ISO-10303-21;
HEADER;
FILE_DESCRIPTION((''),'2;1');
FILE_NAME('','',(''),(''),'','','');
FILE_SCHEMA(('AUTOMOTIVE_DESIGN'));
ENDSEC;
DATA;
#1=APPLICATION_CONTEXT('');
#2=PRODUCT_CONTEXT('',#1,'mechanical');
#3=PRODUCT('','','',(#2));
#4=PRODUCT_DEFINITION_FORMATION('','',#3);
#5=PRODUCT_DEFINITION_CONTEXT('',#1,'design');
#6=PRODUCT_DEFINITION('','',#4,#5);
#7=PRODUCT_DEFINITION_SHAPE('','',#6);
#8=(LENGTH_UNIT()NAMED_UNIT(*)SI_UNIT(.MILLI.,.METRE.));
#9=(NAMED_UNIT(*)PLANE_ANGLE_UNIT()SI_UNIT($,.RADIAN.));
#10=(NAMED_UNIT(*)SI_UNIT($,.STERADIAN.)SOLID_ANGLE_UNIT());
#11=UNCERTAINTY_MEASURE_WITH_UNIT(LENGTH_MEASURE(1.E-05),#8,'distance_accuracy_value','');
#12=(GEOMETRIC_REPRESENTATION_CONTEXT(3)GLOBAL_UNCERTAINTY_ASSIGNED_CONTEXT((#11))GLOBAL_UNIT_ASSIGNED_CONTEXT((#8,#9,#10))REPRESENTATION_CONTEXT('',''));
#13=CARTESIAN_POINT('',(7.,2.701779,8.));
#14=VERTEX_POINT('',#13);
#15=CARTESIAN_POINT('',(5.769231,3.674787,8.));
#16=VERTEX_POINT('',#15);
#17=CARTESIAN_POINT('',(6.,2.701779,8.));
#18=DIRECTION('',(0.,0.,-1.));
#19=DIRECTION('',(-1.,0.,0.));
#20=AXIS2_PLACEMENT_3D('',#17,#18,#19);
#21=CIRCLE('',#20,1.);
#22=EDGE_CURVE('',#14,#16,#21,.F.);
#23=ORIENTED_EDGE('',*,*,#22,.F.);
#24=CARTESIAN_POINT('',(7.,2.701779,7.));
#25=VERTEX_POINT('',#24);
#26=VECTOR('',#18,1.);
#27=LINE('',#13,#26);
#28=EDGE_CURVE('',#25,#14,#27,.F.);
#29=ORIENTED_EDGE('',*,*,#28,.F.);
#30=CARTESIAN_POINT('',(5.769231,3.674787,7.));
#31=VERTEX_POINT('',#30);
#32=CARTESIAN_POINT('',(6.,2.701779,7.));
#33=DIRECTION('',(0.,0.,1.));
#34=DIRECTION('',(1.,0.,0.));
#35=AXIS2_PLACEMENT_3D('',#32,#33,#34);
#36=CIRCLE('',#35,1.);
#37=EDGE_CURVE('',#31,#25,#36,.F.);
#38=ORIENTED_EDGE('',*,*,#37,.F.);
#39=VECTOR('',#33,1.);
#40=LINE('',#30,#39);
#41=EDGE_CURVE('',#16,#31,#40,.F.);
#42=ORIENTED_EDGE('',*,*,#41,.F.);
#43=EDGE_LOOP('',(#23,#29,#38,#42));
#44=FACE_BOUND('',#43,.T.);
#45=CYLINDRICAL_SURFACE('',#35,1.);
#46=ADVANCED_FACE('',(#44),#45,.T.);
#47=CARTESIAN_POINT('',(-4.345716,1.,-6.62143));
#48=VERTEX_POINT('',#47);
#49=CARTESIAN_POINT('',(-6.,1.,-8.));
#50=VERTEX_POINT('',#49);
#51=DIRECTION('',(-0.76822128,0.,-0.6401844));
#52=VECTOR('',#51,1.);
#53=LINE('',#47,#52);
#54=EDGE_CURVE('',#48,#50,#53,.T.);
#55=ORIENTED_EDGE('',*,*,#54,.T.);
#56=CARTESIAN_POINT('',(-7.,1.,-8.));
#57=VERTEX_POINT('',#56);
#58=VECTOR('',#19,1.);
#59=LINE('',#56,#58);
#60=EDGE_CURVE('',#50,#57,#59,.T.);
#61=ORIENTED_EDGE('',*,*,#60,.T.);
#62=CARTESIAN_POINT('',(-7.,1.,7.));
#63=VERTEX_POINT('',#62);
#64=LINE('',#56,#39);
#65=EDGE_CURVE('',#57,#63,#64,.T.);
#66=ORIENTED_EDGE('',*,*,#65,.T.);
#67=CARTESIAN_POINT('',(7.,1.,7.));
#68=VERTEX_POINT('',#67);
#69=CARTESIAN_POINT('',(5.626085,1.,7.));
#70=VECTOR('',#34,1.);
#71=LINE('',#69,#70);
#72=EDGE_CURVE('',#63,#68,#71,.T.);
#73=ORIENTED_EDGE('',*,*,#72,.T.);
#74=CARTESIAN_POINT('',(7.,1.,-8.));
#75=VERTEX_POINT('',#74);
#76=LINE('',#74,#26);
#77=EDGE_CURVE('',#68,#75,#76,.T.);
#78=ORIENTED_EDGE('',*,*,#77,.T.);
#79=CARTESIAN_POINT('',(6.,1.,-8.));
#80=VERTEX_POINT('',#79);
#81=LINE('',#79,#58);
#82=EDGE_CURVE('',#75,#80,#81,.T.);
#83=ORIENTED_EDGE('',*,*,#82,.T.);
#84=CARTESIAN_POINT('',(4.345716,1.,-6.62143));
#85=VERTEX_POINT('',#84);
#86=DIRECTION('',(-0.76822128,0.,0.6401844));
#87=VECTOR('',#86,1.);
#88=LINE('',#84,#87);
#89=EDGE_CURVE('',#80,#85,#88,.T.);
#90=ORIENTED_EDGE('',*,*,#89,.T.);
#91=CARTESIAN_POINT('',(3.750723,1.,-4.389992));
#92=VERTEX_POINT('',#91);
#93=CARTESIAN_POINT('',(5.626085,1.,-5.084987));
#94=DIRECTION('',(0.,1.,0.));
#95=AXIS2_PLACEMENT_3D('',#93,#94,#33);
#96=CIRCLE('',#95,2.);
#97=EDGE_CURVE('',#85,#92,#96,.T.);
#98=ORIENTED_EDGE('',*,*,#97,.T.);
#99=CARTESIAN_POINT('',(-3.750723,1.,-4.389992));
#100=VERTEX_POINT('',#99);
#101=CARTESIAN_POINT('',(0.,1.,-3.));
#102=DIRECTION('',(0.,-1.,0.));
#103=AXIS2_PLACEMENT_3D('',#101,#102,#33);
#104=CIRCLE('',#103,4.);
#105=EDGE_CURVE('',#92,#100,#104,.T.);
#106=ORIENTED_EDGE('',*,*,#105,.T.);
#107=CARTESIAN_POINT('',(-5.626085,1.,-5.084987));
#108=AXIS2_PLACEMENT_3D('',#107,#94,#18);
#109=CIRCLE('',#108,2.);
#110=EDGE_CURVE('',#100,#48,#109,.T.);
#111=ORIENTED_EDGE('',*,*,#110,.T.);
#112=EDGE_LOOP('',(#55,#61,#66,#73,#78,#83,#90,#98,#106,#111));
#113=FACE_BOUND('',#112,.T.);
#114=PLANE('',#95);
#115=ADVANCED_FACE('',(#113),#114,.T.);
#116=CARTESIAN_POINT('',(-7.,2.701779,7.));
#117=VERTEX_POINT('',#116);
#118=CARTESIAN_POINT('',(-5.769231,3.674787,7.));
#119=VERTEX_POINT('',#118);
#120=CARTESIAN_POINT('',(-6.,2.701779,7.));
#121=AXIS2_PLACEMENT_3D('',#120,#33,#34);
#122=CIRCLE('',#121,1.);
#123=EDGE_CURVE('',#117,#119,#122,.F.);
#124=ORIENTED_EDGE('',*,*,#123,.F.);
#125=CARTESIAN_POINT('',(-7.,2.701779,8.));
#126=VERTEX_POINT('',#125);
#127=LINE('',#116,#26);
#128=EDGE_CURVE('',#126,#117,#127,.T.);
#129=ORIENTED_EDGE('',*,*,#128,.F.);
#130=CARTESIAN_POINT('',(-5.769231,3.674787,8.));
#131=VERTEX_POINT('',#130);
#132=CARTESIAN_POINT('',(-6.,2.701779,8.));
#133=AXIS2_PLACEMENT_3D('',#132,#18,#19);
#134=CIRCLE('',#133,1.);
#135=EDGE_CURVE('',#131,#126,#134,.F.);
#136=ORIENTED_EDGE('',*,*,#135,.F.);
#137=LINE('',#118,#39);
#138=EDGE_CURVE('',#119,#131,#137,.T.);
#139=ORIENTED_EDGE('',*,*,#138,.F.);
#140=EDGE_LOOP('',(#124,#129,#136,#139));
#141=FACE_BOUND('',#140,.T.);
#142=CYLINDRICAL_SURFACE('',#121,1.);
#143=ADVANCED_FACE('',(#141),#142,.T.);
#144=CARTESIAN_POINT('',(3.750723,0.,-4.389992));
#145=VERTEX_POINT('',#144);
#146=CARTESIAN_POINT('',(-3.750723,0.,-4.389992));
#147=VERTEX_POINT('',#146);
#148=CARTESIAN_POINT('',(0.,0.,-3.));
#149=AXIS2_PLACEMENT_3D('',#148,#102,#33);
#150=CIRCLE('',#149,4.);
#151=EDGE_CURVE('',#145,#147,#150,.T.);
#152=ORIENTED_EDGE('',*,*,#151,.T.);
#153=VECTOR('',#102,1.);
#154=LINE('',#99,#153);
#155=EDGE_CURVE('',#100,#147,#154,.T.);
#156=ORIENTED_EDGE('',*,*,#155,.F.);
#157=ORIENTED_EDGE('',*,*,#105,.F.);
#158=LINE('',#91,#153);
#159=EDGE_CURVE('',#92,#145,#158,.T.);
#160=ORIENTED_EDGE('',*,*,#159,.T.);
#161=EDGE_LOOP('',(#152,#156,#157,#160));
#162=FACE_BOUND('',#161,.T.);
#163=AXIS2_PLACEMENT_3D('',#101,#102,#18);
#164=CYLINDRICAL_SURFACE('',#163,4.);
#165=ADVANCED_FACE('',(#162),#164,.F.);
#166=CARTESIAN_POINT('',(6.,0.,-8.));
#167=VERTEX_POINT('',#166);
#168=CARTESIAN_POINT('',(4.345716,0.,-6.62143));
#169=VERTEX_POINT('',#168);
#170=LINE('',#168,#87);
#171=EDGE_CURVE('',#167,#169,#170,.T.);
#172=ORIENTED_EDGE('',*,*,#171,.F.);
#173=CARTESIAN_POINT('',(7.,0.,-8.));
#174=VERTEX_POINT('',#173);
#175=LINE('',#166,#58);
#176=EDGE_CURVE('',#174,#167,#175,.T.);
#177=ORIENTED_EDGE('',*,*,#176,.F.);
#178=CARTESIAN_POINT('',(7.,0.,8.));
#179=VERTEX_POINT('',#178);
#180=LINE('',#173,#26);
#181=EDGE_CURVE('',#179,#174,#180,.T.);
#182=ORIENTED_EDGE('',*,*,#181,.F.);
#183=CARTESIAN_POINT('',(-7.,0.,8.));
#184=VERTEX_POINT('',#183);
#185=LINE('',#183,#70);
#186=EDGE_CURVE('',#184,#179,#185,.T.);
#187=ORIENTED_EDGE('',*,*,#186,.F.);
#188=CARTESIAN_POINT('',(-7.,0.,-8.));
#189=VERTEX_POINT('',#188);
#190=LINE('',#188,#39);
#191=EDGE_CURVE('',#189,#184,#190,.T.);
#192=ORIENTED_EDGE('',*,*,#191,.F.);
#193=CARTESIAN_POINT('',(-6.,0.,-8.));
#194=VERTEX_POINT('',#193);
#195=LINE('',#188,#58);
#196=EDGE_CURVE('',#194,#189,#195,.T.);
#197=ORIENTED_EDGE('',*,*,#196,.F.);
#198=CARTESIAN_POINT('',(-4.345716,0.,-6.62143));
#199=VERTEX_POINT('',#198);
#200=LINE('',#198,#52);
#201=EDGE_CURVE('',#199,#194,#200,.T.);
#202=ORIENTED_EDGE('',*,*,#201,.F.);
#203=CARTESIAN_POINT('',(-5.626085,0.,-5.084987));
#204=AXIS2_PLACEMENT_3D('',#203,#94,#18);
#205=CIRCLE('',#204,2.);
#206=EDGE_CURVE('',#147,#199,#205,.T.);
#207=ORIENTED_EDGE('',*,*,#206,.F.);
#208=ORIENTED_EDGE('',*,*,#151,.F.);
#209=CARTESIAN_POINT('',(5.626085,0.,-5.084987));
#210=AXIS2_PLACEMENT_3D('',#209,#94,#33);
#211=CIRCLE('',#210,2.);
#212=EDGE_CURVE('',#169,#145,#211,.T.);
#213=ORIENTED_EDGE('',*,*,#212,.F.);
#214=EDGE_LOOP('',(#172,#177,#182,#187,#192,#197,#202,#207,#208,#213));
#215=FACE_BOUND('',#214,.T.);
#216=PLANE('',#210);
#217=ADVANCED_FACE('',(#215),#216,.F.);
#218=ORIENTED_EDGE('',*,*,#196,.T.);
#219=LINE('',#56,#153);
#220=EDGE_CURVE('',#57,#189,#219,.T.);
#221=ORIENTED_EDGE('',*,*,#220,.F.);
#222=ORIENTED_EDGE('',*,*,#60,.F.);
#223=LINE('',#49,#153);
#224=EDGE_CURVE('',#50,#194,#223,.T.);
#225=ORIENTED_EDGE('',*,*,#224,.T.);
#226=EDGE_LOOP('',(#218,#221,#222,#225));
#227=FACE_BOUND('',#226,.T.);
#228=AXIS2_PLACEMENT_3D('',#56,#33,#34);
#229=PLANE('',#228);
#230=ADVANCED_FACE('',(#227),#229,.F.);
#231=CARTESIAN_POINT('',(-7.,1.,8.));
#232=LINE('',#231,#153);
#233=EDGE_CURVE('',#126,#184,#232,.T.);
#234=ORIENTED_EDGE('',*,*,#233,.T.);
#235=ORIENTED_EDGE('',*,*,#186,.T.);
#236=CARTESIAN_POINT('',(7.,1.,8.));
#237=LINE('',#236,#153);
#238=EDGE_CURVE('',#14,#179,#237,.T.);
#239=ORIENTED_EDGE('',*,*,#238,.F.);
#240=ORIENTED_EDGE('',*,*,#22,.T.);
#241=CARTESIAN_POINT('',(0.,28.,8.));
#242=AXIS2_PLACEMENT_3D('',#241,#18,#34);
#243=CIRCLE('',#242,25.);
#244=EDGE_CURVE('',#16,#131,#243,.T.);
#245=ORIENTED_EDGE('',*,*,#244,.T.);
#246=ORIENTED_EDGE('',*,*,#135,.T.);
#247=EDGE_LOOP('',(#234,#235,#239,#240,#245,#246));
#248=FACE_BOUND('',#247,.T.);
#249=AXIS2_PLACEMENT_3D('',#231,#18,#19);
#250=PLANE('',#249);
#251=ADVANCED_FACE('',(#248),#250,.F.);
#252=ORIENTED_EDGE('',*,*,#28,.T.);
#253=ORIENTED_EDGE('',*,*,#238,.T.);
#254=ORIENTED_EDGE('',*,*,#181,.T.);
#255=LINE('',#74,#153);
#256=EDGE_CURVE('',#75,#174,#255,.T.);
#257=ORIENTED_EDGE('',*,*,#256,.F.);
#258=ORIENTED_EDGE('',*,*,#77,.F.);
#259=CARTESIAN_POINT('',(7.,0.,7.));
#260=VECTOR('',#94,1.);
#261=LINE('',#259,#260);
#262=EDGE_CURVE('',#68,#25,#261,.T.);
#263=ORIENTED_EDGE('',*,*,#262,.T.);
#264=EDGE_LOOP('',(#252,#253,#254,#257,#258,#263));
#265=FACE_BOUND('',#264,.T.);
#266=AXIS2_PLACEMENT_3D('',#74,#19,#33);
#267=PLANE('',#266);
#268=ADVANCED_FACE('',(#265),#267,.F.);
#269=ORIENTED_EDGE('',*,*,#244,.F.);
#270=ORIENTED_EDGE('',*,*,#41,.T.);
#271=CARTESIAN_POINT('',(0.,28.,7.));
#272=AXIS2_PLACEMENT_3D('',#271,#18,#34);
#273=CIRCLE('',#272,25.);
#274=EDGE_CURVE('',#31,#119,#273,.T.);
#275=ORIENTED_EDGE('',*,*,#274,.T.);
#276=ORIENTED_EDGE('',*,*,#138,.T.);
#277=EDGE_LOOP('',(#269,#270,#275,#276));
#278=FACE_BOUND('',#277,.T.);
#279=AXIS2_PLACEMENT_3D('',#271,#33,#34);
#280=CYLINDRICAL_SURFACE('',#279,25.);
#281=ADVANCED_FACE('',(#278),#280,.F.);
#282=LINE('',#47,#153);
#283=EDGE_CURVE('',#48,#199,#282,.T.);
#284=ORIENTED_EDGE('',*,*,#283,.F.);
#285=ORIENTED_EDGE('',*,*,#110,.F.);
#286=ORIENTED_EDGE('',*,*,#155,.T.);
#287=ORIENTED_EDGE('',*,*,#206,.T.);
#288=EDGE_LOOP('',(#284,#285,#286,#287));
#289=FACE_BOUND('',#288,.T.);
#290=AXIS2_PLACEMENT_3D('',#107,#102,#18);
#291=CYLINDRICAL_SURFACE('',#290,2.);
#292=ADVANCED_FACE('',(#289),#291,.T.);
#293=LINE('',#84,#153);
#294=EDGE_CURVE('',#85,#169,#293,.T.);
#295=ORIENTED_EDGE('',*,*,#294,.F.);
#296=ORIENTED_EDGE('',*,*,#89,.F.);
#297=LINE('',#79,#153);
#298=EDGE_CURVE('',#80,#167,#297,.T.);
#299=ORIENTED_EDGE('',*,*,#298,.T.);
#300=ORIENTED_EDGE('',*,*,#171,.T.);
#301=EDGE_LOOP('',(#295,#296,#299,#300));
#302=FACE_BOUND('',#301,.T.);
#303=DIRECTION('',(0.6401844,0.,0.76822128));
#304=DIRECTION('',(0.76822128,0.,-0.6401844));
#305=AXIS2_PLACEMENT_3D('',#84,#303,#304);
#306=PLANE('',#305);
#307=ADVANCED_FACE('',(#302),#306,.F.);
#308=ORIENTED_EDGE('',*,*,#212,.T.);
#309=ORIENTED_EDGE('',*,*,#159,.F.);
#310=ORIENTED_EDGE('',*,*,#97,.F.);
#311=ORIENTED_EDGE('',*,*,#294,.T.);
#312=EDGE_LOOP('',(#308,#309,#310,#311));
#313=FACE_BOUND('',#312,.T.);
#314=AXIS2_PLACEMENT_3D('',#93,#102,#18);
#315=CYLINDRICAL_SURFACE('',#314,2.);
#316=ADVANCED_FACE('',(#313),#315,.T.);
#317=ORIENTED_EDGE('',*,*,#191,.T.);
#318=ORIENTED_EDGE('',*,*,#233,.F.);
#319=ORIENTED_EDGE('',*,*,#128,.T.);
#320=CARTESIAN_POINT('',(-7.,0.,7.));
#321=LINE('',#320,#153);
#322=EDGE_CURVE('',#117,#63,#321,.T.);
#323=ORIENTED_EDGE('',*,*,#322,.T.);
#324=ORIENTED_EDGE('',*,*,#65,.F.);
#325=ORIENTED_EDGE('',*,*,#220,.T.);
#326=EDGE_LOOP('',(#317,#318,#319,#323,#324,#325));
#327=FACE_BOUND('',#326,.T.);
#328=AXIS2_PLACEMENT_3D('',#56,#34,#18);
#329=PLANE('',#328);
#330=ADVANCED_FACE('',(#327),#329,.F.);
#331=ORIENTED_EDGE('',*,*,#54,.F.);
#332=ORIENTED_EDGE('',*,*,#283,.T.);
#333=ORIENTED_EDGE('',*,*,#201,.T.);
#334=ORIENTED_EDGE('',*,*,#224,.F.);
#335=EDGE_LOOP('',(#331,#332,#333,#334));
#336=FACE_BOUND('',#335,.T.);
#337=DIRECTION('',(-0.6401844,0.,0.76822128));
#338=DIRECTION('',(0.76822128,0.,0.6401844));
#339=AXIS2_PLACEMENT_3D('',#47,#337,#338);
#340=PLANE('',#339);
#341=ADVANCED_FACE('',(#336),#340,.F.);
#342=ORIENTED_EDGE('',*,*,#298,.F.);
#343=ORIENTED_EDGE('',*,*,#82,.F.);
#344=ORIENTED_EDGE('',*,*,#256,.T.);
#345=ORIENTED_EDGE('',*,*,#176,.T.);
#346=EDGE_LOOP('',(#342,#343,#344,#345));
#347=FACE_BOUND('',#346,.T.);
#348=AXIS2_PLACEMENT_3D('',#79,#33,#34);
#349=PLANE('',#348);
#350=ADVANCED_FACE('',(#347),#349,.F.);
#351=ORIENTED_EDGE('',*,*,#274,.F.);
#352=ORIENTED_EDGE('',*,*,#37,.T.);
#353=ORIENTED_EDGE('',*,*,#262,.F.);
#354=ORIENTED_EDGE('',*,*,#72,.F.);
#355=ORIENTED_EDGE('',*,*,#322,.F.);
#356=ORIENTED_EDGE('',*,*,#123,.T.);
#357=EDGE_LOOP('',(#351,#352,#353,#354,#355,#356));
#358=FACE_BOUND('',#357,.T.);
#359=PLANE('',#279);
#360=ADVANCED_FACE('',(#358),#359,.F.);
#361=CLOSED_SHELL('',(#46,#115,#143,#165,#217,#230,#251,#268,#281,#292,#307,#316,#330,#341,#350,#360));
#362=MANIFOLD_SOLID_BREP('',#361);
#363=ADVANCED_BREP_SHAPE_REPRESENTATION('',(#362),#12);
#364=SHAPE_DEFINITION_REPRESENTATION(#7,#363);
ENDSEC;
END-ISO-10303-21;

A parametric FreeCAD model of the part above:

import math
import FreeCAD as App
import Part
import Sketcher
from FreeCAD import Vector


def edges_at(feature, points):
    """Names of the edges that pass closest to the given points."""
    edges = feature.Shape.Edges
    near = lambda p: min(range(len(edges)), key=lambda i: edges[i].distToShape(Part.Vertex(*p))[0])
    return sorted({f"Edge{near(p) + 1}" for p in points})

doc = App.newDocument("Part")
body = doc.addObject("PartDesign::Body", "Body")

# Sketch on XZ plane
sketch1 = doc.addObject("Sketcher::SketchObject", "Sketch")
body.addObject(sketch1)
sketch1.AttachmentSupport = (doc.XZ_Plane, [""])
sketch1.MapMode = "FlatFace"
sketch1.addGeometry(Part.LineSegment(Vector(-6, -8, 0), Vector(-7, -8, 0)), False)
sketch1.addGeometry(Part.LineSegment(Vector(-7, -8, 0), Vector(-7, 8, 0)), False)
sketch1.addGeometry(Part.LineSegment(Vector(-7, 8, 0), Vector(7, 8, 0)), False)
sketch1.addGeometry(Part.LineSegment(Vector(7, 8, 0), Vector(7, -8, 0)), False)
sketch1.addGeometry(Part.LineSegment(Vector(7, -8, 0), Vector(6, -8, 0)), False)
sketch1.addGeometry(Part.LineSegment(Vector(6, -8, 0), Vector(4.345716, -6.62143, 0)), False)
sketch1.addGeometry(Part.ArcOfCircle(Part.Circle(Vector(5.626085, -5.084987, 0), Vector(0, 0, 1), 2), math.radians(159.66565), math.radians(230.194429)), False)
sketch1.addGeometry(Part.ArcOfCircle(Part.Circle(Vector(0, -3, 0), Vector(0, 0, 1), 4), math.radians(-20.33435), math.radians(200.33435)), False)
sketch1.addGeometry(Part.ArcOfCircle(Part.Circle(Vector(-5.626085, -5.084987, 0), Vector(0, 0, 1), 2), math.radians(-50.194429), math.radians(20.33435)), False)
sketch1.addGeometry(Part.LineSegment(Vector(-4.345716, -6.62143, 0), Vector(-6, -8, 0)), False)
sketch1.addConstraint(Sketcher.Constraint("Coincident", 0, 2, 1, 1))
sketch1.addConstraint(Sketcher.Constraint("Coincident", 1, 2, 2, 1))
sketch1.addConstraint(Sketcher.Constraint("Coincident", 2, 2, 3, 1))
sketch1.addConstraint(Sketcher.Constraint("Coincident", 3, 2, 4, 1))
sketch1.addConstraint(Sketcher.Constraint("Coincident", 4, 2, 5, 1))
sketch1.addConstraint(Sketcher.Constraint("Coincident", 5, 2, 6, 2))
sketch1.addConstraint(Sketcher.Constraint("Coincident", 6, 1, 7, 1))
sketch1.addConstraint(Sketcher.Constraint("Coincident", 7, 2, 8, 2))
sketch1.addConstraint(Sketcher.Constraint("Coincident", 8, 1, 9, 1))
sketch1.addConstraint(Sketcher.Constraint("Coincident", 9, 2, 0, 1))
sketch1.addConstraint(Sketcher.Constraint("Horizontal", 0))
sketch1.addConstraint(Sketcher.Constraint("Vertical", 1))
sketch1.addConstraint(Sketcher.Constraint("Horizontal", 2))
sketch1.addConstraint(Sketcher.Constraint("Vertical", 3))
sketch1.addConstraint(Sketcher.Constraint("Horizontal", 4))
sketch1.addConstraint(Sketcher.Constraint("PointOnObject", 7, 3, -2))
sketch1.addConstraint(Sketcher.Constraint("Radius", 6, 2.0))
sketch1.addConstraint(Sketcher.Constraint("Radius", 7, 4.0))
sketch1.addConstraint(Sketcher.Constraint("Radius", 8, 2.0))
sketch1.addConstraint(Sketcher.Constraint("DistanceX", 0, 2, 0, 1, 1.0))
sketch1.addConstraint(Sketcher.Constraint("DistanceX", 2, 1, 2, 2, 14.0))
sketch1.addConstraint(Sketcher.Constraint("DistanceX", 4, 2, 4, 1, 1.0))
sketch1.addConstraint(Sketcher.Constraint("DistanceY", 1, 1, 1, 2, 16.0))
sketch1.addConstraint(Sketcher.Constraint("DistanceY", 3, 2, 3, 1, 16.0))
sketch1.addConstraint(Sketcher.Constraint("DistanceY", 7, 3, -1, 1, 3.0))
sketch1.addConstraint(Sketcher.Constraint("DistanceX", 0, 2, -1, 1, 7.0))
sketch1.addConstraint(Sketcher.Constraint("DistanceY", 0, 2, -1, 1, 8.0))
sketch1.addConstraint(Sketcher.Constraint("DistanceX", 8, 3, 5, 2, 9.9718))
sketch1.addConstraint(Sketcher.Constraint("DistanceY", 5, 2, -1, 1, 6.62143))
sketch1.addConstraint(Sketcher.Constraint("DistanceY", 6, 1, -1, 1, 4.389992))
sketch1.addConstraint(Sketcher.Constraint("DistanceY", 7, 2, -1, 1, 4.389992))
sketch1.addConstraint(Sketcher.Constraint("DistanceY", 8, 1, -1, 1, 6.62143))
sketch1.addConstraint(Sketcher.Constraint("DistanceX", 8, 3, 6, 3, 11.252169))
pad1 = doc.addObject("PartDesign::Pad", "Pad")
body.addObject(pad1)
pad1.Profile = sketch1
pad1.Length = 1
pad1.Reversed = True

# Sketch on XY plane
sketch2 = doc.addObject("Sketcher::SketchObject", "Sketch001")
body.addObject(sketch2)
sketch2.AttachmentSupport = (doc.XY_Plane, [""])
sketch2.MapMode = "FlatFace"
sketch2.AttachmentOffset = App.Placement(Vector(0, 0, 8), App.Rotation())
sketch2.addGeometry(Part.LineSegment(Vector(-7, 0, 0), Vector(7, 0, 0)), False)
sketch2.addGeometry(Part.LineSegment(Vector(7, 0, 0), Vector(7, 4, 0)), False)
sketch2.addGeometry(Part.ArcOfCircle(Part.Circle(Vector(0, 28, 0), Vector(0, 0, 1), 25), math.radians(-106), math.radians(-74)), False)
sketch2.addGeometry(Part.LineSegment(Vector(-7, 4, 0), Vector(-7, 0, 0)), False)
sketch2.addConstraint(Sketcher.Constraint("Coincident", 0, 2, 1, 1))
sketch2.addConstraint(Sketcher.Constraint("Coincident", 1, 2, 2, 2))
sketch2.addConstraint(Sketcher.Constraint("Coincident", 2, 1, 3, 1))
sketch2.addConstraint(Sketcher.Constraint("Coincident", 3, 2, 0, 1))
sketch2.addConstraint(Sketcher.Constraint("Horizontal", 0))
sketch2.addConstraint(Sketcher.Constraint("Vertical", 1))
sketch2.addConstraint(Sketcher.Constraint("Vertical", 3))
sketch2.addConstraint(Sketcher.Constraint("Symmetric", 0, 2, 3, 2, -1, 1))
sketch2.addConstraint(Sketcher.Constraint("PointOnObject", 2, 3, -2))
sketch2.addConstraint(Sketcher.Constraint("Radius", 2, 25.0))
sketch2.addConstraint(Sketcher.Constraint("DistanceX", 0, 1, 0, 2, 14.0))
sketch2.addConstraint(Sketcher.Constraint("DistanceY", 1, 1, 1, 2, 4.0))
pad2 = doc.addObject("PartDesign::Pad", "Pad001")
body.addObject(pad2)
pad2.Profile = sketch2
pad2.Length = 1
pad2.Reversed = True
doc.recompute()

fillet = doc.addObject("PartDesign::Fillet", "Fillet")
body.addObject(fillet)
fillet.Base = (pad2, edges_at(pad2, [(-7, 4, 7.5), (7, 4, 7.5)]))
fillet.Radius = 1

doc.recompute()
